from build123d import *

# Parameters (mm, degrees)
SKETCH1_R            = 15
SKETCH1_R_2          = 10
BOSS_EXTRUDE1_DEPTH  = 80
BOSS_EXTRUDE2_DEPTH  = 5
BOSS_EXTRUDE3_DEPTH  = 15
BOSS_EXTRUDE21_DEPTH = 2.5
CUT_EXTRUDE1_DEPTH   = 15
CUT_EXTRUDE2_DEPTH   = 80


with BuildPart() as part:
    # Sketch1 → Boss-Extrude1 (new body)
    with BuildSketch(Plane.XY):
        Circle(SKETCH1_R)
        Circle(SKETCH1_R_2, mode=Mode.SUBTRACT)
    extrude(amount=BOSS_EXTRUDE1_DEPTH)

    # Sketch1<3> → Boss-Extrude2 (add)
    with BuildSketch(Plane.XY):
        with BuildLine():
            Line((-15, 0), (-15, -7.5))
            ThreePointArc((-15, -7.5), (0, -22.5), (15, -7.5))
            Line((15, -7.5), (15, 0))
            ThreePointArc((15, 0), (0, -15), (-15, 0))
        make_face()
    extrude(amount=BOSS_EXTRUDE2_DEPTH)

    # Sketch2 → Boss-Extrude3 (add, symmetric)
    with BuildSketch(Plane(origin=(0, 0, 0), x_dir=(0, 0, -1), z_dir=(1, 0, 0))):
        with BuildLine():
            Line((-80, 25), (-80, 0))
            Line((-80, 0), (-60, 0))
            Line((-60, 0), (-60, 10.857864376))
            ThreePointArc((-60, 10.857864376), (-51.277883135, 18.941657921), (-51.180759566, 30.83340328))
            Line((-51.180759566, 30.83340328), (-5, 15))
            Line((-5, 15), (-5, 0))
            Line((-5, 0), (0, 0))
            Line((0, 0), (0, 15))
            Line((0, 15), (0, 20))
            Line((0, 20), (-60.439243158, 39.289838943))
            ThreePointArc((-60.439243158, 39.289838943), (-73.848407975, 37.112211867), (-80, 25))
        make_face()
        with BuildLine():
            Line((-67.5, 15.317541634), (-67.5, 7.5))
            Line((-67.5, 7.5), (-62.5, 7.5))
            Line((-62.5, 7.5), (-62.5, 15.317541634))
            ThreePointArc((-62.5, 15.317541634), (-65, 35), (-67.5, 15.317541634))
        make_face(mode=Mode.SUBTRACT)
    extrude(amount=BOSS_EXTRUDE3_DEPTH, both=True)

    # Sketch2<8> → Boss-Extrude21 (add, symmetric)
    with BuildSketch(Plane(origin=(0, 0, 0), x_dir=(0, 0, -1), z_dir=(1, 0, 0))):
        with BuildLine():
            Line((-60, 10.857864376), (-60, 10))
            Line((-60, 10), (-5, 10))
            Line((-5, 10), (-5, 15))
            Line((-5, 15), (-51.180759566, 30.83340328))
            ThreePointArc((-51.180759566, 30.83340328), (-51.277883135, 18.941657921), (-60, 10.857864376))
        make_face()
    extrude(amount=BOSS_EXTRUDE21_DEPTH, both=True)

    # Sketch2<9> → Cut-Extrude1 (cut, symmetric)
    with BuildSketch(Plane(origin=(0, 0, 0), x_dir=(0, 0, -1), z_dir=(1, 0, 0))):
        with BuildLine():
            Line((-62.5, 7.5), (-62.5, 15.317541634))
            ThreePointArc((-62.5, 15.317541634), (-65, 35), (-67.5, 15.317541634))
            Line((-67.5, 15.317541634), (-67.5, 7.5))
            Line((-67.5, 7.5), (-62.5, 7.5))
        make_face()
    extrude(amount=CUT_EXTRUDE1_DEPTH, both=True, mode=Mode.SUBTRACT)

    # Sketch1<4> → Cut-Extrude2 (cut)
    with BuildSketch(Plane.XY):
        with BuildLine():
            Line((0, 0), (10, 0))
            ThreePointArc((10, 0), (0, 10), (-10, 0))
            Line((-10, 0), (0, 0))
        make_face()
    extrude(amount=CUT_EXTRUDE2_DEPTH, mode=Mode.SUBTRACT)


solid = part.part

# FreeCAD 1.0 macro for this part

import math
import FreeCAD as App
import Part
import Sketcher
from FreeCAD import Vector
Q = App.Units.Quantity

doc = App.newDocument("Part")
body = doc.addObject("PartDesign::Body", "Body")

sketch1 = doc.addObject("Sketcher::SketchObject", "Sketch")
body.addObject(sketch1)
sketch1.AttachmentSupport = (doc.XY_Plane, [""])
sketch1.MapMode = "FlatFace"
sketch1.addGeometry(Part.Circle(Vector(0, 0, 0), Vector(0, 0, 1), 15), False)
sketch1.addGeometry(Part.Circle(Vector(0, 0, 0), Vector(0, 0, 1), 10), False)
sketch1.addConstraint(Sketcher.Constraint("Coincident", 0, 3, -1, 1))
sketch1.addConstraint(Sketcher.Constraint("Coincident", 1, 3, -1, 1))
sketch1.addConstraint(Sketcher.Constraint("Diameter", 0, Q("30 mm")))
sketch1.addConstraint(Sketcher.Constraint("Diameter", 1, Q("20 mm")))
pad1 = doc.addObject("PartDesign::Pad", "Pad")
body.addObject(pad1)
pad1.Profile = sketch1
pad1.Length = 80

sketch2 = doc.addObject("Sketcher::SketchObject", "Sketch001")
body.addObject(sketch2)
sketch2.AttachmentSupport = (doc.XY_Plane, [""])
sketch2.MapMode = "FlatFace"
sketch2.addGeometry(Part.LineSegment(Vector(-15, 0, 0), Vector(-15, -8, 0)), False)
sketch2.addGeometry(Part.ArcOfCircle(Part.Circle(Vector(0, -8, 0), Vector(0, 0, 1), 15), math.radians(180), math.radians(360)), False)
sketch2.addGeometry(Part.LineSegment(Vector(15, -8, 0), Vector(15, 0, 0)), False)
sketch2.addGeometry(Part.ArcOfCircle(Part.Circle(Vector(0, 0, 0), Vector(0, 0, 1), 15), math.radians(180), math.radians(360)), False)
sketch2.addConstraint(Sketcher.Constraint("Tangent", 0, 2, 1, 1))
sketch2.addConstraint(Sketcher.Constraint("Tangent", 1, 2, 2, 1))
sketch2.addConstraint(Sketcher.Constraint("Tangent", 2, 2, 3, 2))
sketch2.addConstraint(Sketcher.Constraint("Tangent", 3, 1, 0, 1))
sketch2.addConstraint(Sketcher.Constraint("Vertical", 0))
sketch2.addConstraint(Sketcher.Constraint("Vertical", 2))
sketch2.addConstraint(Sketcher.Constraint("Coincident", 3, 3, -1, 1))
sketch2.addConstraint(Sketcher.Constraint("Radius", 1, Q("15 mm")))
sketch2.addConstraint(Sketcher.Constraint("DistanceY", 0, 2, 0, 1, Q("7.5 mm")))
pad2 = doc.addObject("PartDesign::Pad", "Pad001")
body.addObject(pad2)
pad2.Profile = sketch2
pad2.Length = 5

sketch3 = doc.addObject("Sketcher::SketchObject", "Sketch002")
body.addObject(sketch3)
sketch3.AttachmentSupport = (doc.YZ_Plane, [""])
sketch3.MapMode = "FlatFace"
sketch3.addGeometry(Part.LineSegment(Vector(25, 80, 0), Vector(0, 80, 0)), False)
sketch3.addGeometry(Part.LineSegment(Vector(0, 80, 0), Vector(0, 60, 0)), False)
sketch3.addGeometry(Part.LineSegment(Vector(0, 60, 0), Vector(11, 60, 0)), False)
sketch3.addGeometry(Part.ArcOfCircle(Part.Circle(Vector(25, 65, 0), Vector(0, 0, 1), 15), math.radians(-161), math.radians(-67)), False)
sketch3.addGeometry(Part.LineSegment(Vector(31, 51, 0), Vector(15, 5, 0)), False)
sketch3.addGeometry(Part.LineSegment(Vector(15, 5, 0), Vector(0, 5, 0)), False)
sketch3.addGeometry(Part.LineSegment(Vector(0, 5, 0), Vector(0, 0, 0)), False)
sketch3.addGeometry(Part.LineSegment(Vector(0, 0, 0), Vector(20, 0, 0)), False)
sketch3.addGeometry(Part.LineSegment(Vector(20, 0, 0), Vector(39, 60, 0)), False)
sketch3.addGeometry(Part.ArcOfCircle(Part.Circle(Vector(25, 65, 0), Vector(0, 0, 1), 15), math.radians(-18), math.radians(90)), False)
sketch3.addGeometry(Part.LineSegment(Vector(8, 68, 0), Vector(15, 68, 0)), False)
sketch3.addGeometry(Part.ArcOfCircle(Part.Circle(Vector(25, 65, 0), Vector(0, 0, 1), 10), math.radians(-166), math.radians(166)), False)
sketch3.addGeometry(Part.LineSegment(Vector(15, 62, 0), Vector(8, 62, 0)), False)
sketch3.addGeometry(Part.LineSegment(Vector(8, 62, 0), Vector(8, 68, 0)), False)
sketch3.addConstraint(Sketcher.Constraint("Coincident", 0, 2, 1, 1))
sketch3.addConstraint(Sketcher.Constraint("Coincident", 1, 2, 2, 1))
sketch3.addConstraint(Sketcher.Constraint("Coincident", 2, 2, 3, 1))
sketch3.addConstraint(Sketcher.Constraint("Coincident", 3, 2, 4, 1))
sketch3.addConstraint(Sketcher.Constraint("Coincident", 4, 2, 5, 1))
sketch3.addConstraint(Sketcher.Constraint("Coincident", 5, 2, 6, 1))
sketch3.addConstraint(Sketcher.Constraint("Coincident", 6, 2, 7, 1))
sketch3.addConstraint(Sketcher.Constraint("Coincident", 7, 2, 8, 1))
sketch3.addConstraint(Sketcher.Constraint("Tangent", 8, 2, 9, 1))
sketch3.addConstraint(Sketcher.Constraint("Tangent", 9, 2, 0, 1))
sketch3.addConstraint(Sketcher.Constraint("Coincident", 10, 2, 11, 2))
sketch3.addConstraint(Sketcher.Constraint("Coincident", 11, 1, 12, 1))
sketch3.addConstraint(Sketcher.Constraint("Coincident", 12, 2, 13, 1))
sketch3.addConstraint(Sketcher.Constraint("Coincident", 13, 2, 10, 1))
sketch3.addConstraint(Sketcher.Constraint("Horizontal", 0))
sketch3.addConstraint(Sketcher.Constraint("Vertical", 1))
sketch3.addConstraint(Sketcher.Constraint("Horizontal", 2))
sketch3.addConstraint(Sketcher.Constraint("Horizontal", 5))
sketch3.addConstraint(Sketcher.Constraint("Vertical", 6))
sketch3.addConstraint(Sketcher.Constraint("Horizontal", 7))
sketch3.addConstraint(Sketcher.Constraint("Horizontal", 10))
sketch3.addConstraint(Sketcher.Constraint("Horizontal", 12))
sketch3.addConstraint(Sketcher.Constraint("Vertical", 13))
sketch3.addConstraint(Sketcher.Constraint("Coincident", 6, 2, -1, 1))
sketch3.addConstraint(Sketcher.Constraint("Coincident", 9, 3, 3, 3))
sketch3.addConstraint(Sketcher.Constraint("Coincident", 11, 3, 3, 3))
sketch3.addConstraint(Sketcher.Constraint("Equal", 3, 9))
sketch3.addConstraint(Sketcher.Constraint("PointOnObject", 0, 2, -2))
sketch3.addConstraint(Sketcher.Constraint("Vertical", 10, 2, 11, 1))
sketch3.addConstraint(Sketcher.Constraint("Equal", 7, 1))
sketch3.addConstraint(Sketcher.Constraint("Equal", 6, 13))
sketch3.addConstraint(Sketcher.Constraint("Radius", 3, Q("15 mm")))
sketch3.addConstraint(Sketcher.Constraint("Radius", 11, Q("10 mm")))
sketch3.addConstraint(Sketcher.Constraint("DistanceX", 0, 2, 0, 1, Q("25 mm")))
sketch3.addConstraint(Sketcher.Constraint("DistanceX", 5, 2, 5, 1, Q("15 mm")))
sketch3.addConstraint(Sketcher.Constraint("DistanceX", 7, 1, 7, 2, Q("20 mm")))
sketch3.addConstraint(Sketcher.Constraint("DistanceY", 6, 2, 6, 1, Q("5 mm")))
sketch3.addConstraint(Sketcher.Constraint("DistanceY", -1, 1, 3, 3, Q("65 mm")))
sketch3.addConstraint(Sketcher.Constraint("DistanceX", -1, 1, 12, 2, Q("7.5 mm")))
sketch3.addConstraint(Sketcher.Constraint("Distance", 4, Q("48.81966 mm")))
pad3 = doc.addObject("PartDesign::Pad", "Pad002")
body.addObject(pad3)
pad3.Profile = sketch3
pad3.Length = 30
pad3.Midplane = True

sketch4 = doc.addObject("Sketcher::SketchObject", "Sketch003")
body.addObject(sketch4)
sketch4.AttachmentSupport = (doc.YZ_Plane, [""])
sketch4.MapMode = "FlatFace"
sketch4.addGeometry(Part.LineSegment(Vector(10.9, 60, 0), Vector(10, 60, 0)), False)
sketch4.addGeometry(Part.LineSegment(Vector(10, 60, 0), Vector(10, 5, 0)), False)
sketch4.addGeometry(Part.LineSegment(Vector(10, 5, 0), Vector(15, 5, 0)), False)
sketch4.addGeometry(Part.LineSegment(Vector(15, 5, 0), Vector(30.8, 51.2, 0)), False)
sketch4.addGeometry(Part.ArcOfCircle(Part.Circle(Vector(25, 65, 0), Vector(0, 0, 1), 15), math.radians(-161), math.radians(-67)), False)
sketch4.addConstraint(Sketcher.Constraint("Coincident", 0, 2, 1, 1))
sketch4.addConstraint(Sketcher.Constraint("Coincident", 1, 2, 2, 1))
sketch4.addConstraint(Sketcher.Constraint("Coincident", 2, 2, 3, 1))
sketch4.addConstraint(Sketcher.Constraint("Coincident", 3, 2, 4, 2))
sketch4.addConstraint(Sketcher.Constraint("Coincident", 4, 1, 0, 1))
sketch4.addConstraint(Sketcher.Constraint("Horizontal", 0))
sketch4.addConstraint(Sketcher.Constraint("Vertical", 1))
sketch4.addConstraint(Sketcher.Constraint("Horizontal", 2))
sketch4.addConstraint(Sketcher.Constraint("Radius", 4, Q("15 mm")))
sketch4.addConstraint(Sketcher.Constraint("DistanceX", 2, 1, 2, 2, Q("5 mm")))
sketch4.addConstraint(Sketcher.Constraint("DistanceY", 1, 2, 1, 1, Q("55 mm")))
sketch4.addConstraint(Sketcher.Constraint("DistanceX", -1, 1, 4, 3, Q("25 mm")))
sketch4.addConstraint(Sketcher.Constraint("DistanceY", -1, 1, 4, 3, Q("65 mm")))
sketch4.addConstraint(Sketcher.Constraint("DistanceX", -1, 1, 0, 2, Q("10 mm")))
sketch4.addConstraint(Sketcher.Constraint("DistanceY", -1, 1, 0, 2, Q("60 mm")))
sketch4.addConstraint(Sketcher.Constraint("Distance", 3, Q("48.81966 mm")))
pad4 = doc.addObject("PartDesign::Pad", "Pad003")
body.addObject(pad4)
pad4.Profile = sketch4
pad4.Length = 5
pad4.Midplane = True

sketch5 = doc.addObject("Sketcher::SketchObject", "Sketch004")
body.addObject(sketch5)
sketch5.AttachmentSupport = (doc.YZ_Plane, [""])
sketch5.MapMode = "FlatFace"
sketch5.addGeometry(Part.LineSegment(Vector(8, 62, 0), Vector(15, 62, 0)), False)
sketch5.addGeometry(Part.ArcOfCircle(Part.Circle(Vector(25, 65, 0), Vector(0, 0, 1), 10), math.radians(-166), math.radians(166)), False)
sketch5.addGeometry(Part.LineSegment(Vector(15, 68, 0), Vector(8, 68, 0)), False)
sketch5.addGeometry(Part.LineSegment(Vector(8, 68, 0), Vector(8, 62, 0)), False)
sketch5.addConstraint(Sketcher.Constraint("Coincident", 0, 2, 1, 1))
sketch5.addConstraint(Sketcher.Constraint("Coincident", 1, 2, 2, 1))
sketch5.addConstraint(Sketcher.Constraint("Coincident", 2, 2, 3, 1))
sketch5.addConstraint(Sketcher.Constraint("Coincident", 3, 2, 0, 1))
sketch5.addConstraint(Sketcher.Constraint("Horizontal", 0))
sketch5.addConstraint(Sketcher.Constraint("Horizontal", 2))
sketch5.addConstraint(Sketcher.Constraint("Vertical", 3))
sketch5.addConstraint(Sketcher.Constraint("Vertical", 0, 2, 1, 2))
sketch5.addConstraint(Sketcher.Constraint("Radius", 1, Q("10 mm")))
sketch5.addConstraint(Sketcher.Constraint("DistanceY", 3, 2, 3, 1, Q("5 mm")))
sketch5.addConstraint(Sketcher.Constraint("DistanceX", -1, 1, 1, 3, Q("25 mm")))
sketch5.addConstraint(Sketcher.Constraint("DistanceY", -1, 1, 1, 3, Q("65 mm")))
sketch5.addConstraint(Sketcher.Constraint("DistanceX", -1, 1, 2, 2, Q("7.5 mm")))
pocket1 = doc.addObject("PartDesign::Pocket", "Pocket")
body.addObject(pocket1)
pocket1.Profile = sketch5
pocket1.Length = 30
pocket1.Midplane = True

sketch6 = doc.addObject("Sketcher::SketchObject", "Sketch005")
body.addObject(sketch6)
sketch6.AttachmentSupport = (doc.XY_Plane, [""])
sketch6.MapMode = "FlatFace"
sketch6.addGeometry(Part.ArcOfCircle(Part.Circle(Vector(0, 0, 0), Vector(0, 0, 1), 10), math.radians(0), math.radians(180)), False)
sketch6.addGeometry(Part.LineSegment(Vector(-10, 0, 0), Vector(10, 0, 0)), False)
sketch6.addConstraint(Sketcher.Constraint("Coincident", 0, 1, 1, 2))
sketch6.addConstraint(Sketcher.Constraint("Coincident", 1, 1, 0, 2))
sketch6.addConstraint(Sketcher.Constraint("Horizontal", 1))
sketch6.addConstraint(Sketcher.Constraint("Coincident", 0, 3, -1, 1))
sketch6.addConstraint(Sketcher.Constraint("PointOnObject", 0, 1, -1))
sketch6.addConstraint(Sketcher.Constraint("Radius", 0, Q("10 mm")))
pocket2 = doc.addObject("PartDesign::Pocket", "Pocket001")
body.addObject(pocket2)
pocket2.Profile = sketch6
pocket2.Length = 80
pocket2.Reversed = True

doc.recompute()
